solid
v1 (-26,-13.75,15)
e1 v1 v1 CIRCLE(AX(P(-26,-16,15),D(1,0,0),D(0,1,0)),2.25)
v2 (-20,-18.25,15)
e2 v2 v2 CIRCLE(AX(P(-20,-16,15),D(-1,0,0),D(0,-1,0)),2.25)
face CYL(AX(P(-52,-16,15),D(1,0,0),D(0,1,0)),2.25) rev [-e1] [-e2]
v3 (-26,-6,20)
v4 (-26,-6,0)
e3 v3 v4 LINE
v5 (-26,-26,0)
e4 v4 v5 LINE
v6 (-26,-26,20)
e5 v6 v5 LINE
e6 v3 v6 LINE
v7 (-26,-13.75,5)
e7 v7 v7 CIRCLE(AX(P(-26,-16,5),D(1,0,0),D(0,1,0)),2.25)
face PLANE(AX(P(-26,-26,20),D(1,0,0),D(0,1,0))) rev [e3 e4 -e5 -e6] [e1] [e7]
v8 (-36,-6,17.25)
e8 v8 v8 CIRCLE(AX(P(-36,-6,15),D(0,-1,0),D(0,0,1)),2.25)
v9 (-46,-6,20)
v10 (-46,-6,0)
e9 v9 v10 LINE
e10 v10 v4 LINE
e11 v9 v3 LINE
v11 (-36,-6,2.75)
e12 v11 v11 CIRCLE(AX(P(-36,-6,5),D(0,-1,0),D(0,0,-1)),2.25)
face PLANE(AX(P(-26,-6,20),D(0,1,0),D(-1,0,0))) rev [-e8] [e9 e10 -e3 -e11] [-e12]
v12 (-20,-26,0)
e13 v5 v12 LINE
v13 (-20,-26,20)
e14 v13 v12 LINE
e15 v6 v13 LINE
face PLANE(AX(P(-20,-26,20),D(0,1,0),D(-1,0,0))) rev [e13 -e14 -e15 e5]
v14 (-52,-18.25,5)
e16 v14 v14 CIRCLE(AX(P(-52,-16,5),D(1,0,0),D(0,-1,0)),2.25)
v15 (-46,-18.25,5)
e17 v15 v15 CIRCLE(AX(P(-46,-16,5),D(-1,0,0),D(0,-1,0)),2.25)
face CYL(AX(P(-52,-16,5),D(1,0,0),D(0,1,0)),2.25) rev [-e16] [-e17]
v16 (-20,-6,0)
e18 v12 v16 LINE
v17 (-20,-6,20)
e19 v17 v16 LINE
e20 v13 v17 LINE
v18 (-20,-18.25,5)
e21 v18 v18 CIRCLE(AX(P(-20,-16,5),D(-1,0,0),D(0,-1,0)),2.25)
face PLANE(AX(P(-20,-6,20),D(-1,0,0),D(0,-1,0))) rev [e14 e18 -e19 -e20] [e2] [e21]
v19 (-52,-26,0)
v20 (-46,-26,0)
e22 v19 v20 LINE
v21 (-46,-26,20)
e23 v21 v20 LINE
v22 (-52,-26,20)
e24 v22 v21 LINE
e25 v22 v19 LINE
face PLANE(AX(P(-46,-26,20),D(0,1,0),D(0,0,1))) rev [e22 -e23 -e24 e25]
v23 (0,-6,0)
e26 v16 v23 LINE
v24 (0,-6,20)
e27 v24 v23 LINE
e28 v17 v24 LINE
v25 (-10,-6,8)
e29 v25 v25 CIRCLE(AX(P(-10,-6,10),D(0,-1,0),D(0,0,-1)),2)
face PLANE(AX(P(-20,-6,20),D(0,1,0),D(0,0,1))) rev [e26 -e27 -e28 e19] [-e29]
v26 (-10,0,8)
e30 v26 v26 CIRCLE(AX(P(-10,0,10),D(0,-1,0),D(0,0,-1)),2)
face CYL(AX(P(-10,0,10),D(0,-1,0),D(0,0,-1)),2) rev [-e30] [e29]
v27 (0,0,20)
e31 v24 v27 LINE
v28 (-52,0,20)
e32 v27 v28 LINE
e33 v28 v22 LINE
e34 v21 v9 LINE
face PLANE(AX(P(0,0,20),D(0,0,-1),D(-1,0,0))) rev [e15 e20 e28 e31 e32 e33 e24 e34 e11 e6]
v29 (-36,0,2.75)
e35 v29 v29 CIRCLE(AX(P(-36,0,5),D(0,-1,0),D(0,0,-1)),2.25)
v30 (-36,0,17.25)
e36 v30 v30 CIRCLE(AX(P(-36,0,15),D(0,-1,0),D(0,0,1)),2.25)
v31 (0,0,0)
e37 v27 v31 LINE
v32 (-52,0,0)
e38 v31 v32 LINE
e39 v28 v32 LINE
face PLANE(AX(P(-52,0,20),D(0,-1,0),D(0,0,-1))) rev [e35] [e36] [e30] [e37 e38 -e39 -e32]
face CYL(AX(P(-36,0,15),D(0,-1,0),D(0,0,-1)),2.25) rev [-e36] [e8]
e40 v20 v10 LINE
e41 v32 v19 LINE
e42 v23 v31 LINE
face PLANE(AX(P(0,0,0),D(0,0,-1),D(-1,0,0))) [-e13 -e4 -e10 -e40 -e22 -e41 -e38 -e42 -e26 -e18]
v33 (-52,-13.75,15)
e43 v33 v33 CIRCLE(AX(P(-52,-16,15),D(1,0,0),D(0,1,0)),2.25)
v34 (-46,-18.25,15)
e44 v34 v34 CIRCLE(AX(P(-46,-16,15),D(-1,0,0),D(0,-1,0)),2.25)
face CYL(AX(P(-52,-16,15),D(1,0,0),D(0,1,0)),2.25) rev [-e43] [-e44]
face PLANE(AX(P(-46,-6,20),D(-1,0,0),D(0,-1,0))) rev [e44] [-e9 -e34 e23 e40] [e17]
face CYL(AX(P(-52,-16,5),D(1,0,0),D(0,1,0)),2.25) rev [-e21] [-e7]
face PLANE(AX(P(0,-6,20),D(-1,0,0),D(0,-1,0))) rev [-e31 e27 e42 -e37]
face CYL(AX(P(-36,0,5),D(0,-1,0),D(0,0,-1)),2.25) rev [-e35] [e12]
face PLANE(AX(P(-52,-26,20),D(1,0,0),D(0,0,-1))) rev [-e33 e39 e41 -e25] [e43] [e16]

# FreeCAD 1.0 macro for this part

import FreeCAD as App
import Part
import Sketcher
from FreeCAD import Vector

doc = App.newDocument("Part")
params = doc.addObject("Spreadsheet::Sheet", "Params")
for row, (alias, value) in enumerate([
    ("sketch1_width", "6 mm"),
    ("sketch1_width2", "20 mm"),
    ("pad1_length", "20 mm"),
    ("sketch2_diameter", "4.5 mm"),
    ("sketch3_diameter", "4.5 mm"),
    ("sketch4_diameter", "4 mm"),
], start=1):
    params.set(f"A{row}", alias)
    params.set(f"B{row}", "=" + value)
    params.setAlias(f"B{row}", alias)

body = doc.addObject("PartDesign::Body", "Body")

sketch1 = body.newObject("Sketcher::SketchObject", "Sketch")
sketch1.AttachmentSupport = (doc.getObject("XY_Plane"), [""])
sketch1.MapMode = "FlatFace"
sketch1.addGeometry([
    Part.LineSegment(Vector(-52, 0, 0), Vector(-52, -26, 0)),
    Part.LineSegment(Vector(-52, -26, 0), Vector(-46, -26, 0)),
    Part.LineSegment(Vector(-46, -26, 0), Vector(-46, -6, 0)),
    Part.LineSegment(Vector(-46, -6, 0), Vector(-26, -6, 0)),
    Part.LineSegment(Vector(-26, -6, 0), Vector(-26, -26, 0)),
    Part.LineSegment(Vector(-26, -26, 0), Vector(-20, -26, 0)),
    Part.LineSegment(Vector(-20, -26, 0), Vector(-20, -6, 0)),
    Part.LineSegment(Vector(-20, -6, 0), Vector(0, -6, 0)),
    Part.LineSegment(Vector(0, -6, 0), Vector(0, 0, 0)),
    Part.LineSegment(Vector(0, 0, 0), Vector(-52, 0, 0)),
], False)
sketch1.addConstraint([
    Sketcher.Constraint("Coincident", 0, 2, 1, 1),
    Sketcher.Constraint("Coincident", 1, 2, 2, 1),
    Sketcher.Constraint("Coincident", 2, 2, 3, 1),
    Sketcher.Constraint("Coincident", 3, 2, 4, 1),
    Sketcher.Constraint("Coincident", 4, 2, 5, 1),
    Sketcher.Constraint("Coincident", 5, 2, 6, 1),
    Sketcher.Constraint("Coincident", 6, 2, 7, 1),
    Sketcher.Constraint("Coincident", 7, 2, 8, 1),
    Sketcher.Constraint("Coincident", 8, 2, 9, 1),
    Sketcher.Constraint("Coincident", 9, 2, 0, 1),
    Sketcher.Constraint("Vertical", 0),
    Sketcher.Constraint("Horizontal", 1),
    Sketcher.Constraint("Vertical", 2),
    Sketcher.Constraint("Horizontal", 3),
    Sketcher.Constraint("Vertical", 4),
    Sketcher.Constraint("Horizontal", 5),
    Sketcher.Constraint("Vertical", 6),
    Sketcher.Constraint("Horizontal", 7),
    Sketcher.Constraint("Vertical", 8),
    Sketcher.Constraint("Horizontal", 9),
    Sketcher.Constraint("Coincident", 8, 2, -1, 1),
    Sketcher.Constraint("Horizontal", 1, 2, 4, 2),
    Sketcher.Constraint("Horizontal", 3, 2, 6, 2),
    Sketcher.Constraint("Equal", 1, 5),
    Sketcher.Constraint("Equal", 3, 7),
    Sketcher.Constraint("Equal", 7, 2),
    Sketcher.Constraint("Equal", 5, 8),
    Sketcher.Constraint("DistanceX", 1, 1, 1, 2, 6.0),
    Sketcher.Constraint("DistanceX", 3, 1, 3, 2, 20.0),
])
sketch1.setExpression("Constraints[27]", "Params.sketch1_width")
sketch1.setExpression("Constraints[28]", "Params.sketch1_width2")
pad1 = body.newObject("PartDesign::Pad", "Pad")
pad1.Profile = sketch1
pad1.setExpression("Length", "Params.pad1_length")

sketch2 = body.newObject("Sketcher::SketchObject", "Sketch001")
sketch2.AttachmentSupport = (doc.getObject("YZ_Plane"), [""])
sketch2.MapMode = "FlatFace"
sketch2.AttachmentOffset = App.Placement(Vector(0, 0, -46), App.Rotation())
sketch2.addGeometry([
    Part.Circle(Vector(-16, 15, 0), Vector(0, 0, 1), 2.25),
    Part.Circle(Vector(-16, 5, 0), Vector(0, 0, 1), 2.25),
], False)
sketch2.addConstraint([
    Sketcher.Constraint("Equal", 0, 1),
    Sketcher.Constraint("Vertical", 0, 3, 1, 3),
    Sketcher.Constraint("Diameter", 0, 4.5),
    Sketcher.Constraint("DistanceX", 0, 3, -1, 1, 16.0),
    Sketcher.Constraint("DistanceY", -1, 1, 0, 3, 15.0),
    Sketcher.Constraint("DistanceY", -1, 1, 1, 3, 5.0),
])
sketch2.setExpression("Constraints[2]", "Params.sketch2_diameter")
pocket1 = body.newObject("PartDesign::Pocket", "Pocket")
pocket1.Profile = sketch2
pocket1.Type = "ThroughAll"
pocket1.Midplane = True

sketch3 = body.newObject("Sketcher::SketchObject", "Sketch002")
sketch3.AttachmentSupport = (doc.getObject("XZ_Plane"), [""])
sketch3.MapMode = "FlatFace"
sketch3.AttachmentOffset = App.Placement(Vector(0, 0, 6), App.Rotation())
sketch3.addGeometry([
    Part.Circle(Vector(-36, 5, 0), Vector(0, 0, 1), 2.25),
    Part.Circle(Vector(-36, 15, 0), Vector(0, 0, 1), 2.25),
], False)
sketch3.addConstraint([
    Sketcher.Constraint("Equal", 0, 1),
    Sketcher.Constraint("Vertical", 0, 3, 1, 3),
    Sketcher.Constraint("Diameter", 0, 4.5),
    Sketcher.Constraint("DistanceX", 0, 3, -1, 1, 36.0),
    Sketcher.Constraint("DistanceY", -1, 1, 0, 3, 5.0),
    Sketcher.Constraint("DistanceY", -1, 1, 1, 3, 15.0),
])
sketch3.setExpression("Constraints[2]", "Params.sketch3_diameter")
pocket2 = body.newObject("PartDesign::Pocket", "Pocket001")
pocket2.Profile = sketch3
pocket2.Type = "ThroughAll"
pocket2.Midplane = True

sketch4 = body.newObject("Sketcher::SketchObject", "Sketch003")
sketch4.AttachmentSupport = (doc.getObject("XZ_Plane"), [""])
sketch4.MapMode = "FlatFace"
sketch4.AttachmentOffset = App.Placement(Vector(0, 0, 6), App.Rotation())
sketch4.addGeometry(Part.Circle(Vector(-10, 10, 0), Vector(0, 0, 1), 2), False)
sketch4.addConstraint([
    Sketcher.Constraint("Diameter", 0, 4.0),
    Sketcher.Constraint("DistanceX", 0, 3, -1, 1, 10.0),
    Sketcher.Constraint("DistanceY", -1, 1, 0, 3, 10.0),
])
sketch4.setExpression("Constraints[0]", "Params.sketch4_diameter")
pocket3 = body.newObject("PartDesign::Pocket", "Pocket002")
pocket3.Profile = sketch4
pocket3.Type = "ThroughAll"
pocket3.Midplane = True

doc.recompute()
